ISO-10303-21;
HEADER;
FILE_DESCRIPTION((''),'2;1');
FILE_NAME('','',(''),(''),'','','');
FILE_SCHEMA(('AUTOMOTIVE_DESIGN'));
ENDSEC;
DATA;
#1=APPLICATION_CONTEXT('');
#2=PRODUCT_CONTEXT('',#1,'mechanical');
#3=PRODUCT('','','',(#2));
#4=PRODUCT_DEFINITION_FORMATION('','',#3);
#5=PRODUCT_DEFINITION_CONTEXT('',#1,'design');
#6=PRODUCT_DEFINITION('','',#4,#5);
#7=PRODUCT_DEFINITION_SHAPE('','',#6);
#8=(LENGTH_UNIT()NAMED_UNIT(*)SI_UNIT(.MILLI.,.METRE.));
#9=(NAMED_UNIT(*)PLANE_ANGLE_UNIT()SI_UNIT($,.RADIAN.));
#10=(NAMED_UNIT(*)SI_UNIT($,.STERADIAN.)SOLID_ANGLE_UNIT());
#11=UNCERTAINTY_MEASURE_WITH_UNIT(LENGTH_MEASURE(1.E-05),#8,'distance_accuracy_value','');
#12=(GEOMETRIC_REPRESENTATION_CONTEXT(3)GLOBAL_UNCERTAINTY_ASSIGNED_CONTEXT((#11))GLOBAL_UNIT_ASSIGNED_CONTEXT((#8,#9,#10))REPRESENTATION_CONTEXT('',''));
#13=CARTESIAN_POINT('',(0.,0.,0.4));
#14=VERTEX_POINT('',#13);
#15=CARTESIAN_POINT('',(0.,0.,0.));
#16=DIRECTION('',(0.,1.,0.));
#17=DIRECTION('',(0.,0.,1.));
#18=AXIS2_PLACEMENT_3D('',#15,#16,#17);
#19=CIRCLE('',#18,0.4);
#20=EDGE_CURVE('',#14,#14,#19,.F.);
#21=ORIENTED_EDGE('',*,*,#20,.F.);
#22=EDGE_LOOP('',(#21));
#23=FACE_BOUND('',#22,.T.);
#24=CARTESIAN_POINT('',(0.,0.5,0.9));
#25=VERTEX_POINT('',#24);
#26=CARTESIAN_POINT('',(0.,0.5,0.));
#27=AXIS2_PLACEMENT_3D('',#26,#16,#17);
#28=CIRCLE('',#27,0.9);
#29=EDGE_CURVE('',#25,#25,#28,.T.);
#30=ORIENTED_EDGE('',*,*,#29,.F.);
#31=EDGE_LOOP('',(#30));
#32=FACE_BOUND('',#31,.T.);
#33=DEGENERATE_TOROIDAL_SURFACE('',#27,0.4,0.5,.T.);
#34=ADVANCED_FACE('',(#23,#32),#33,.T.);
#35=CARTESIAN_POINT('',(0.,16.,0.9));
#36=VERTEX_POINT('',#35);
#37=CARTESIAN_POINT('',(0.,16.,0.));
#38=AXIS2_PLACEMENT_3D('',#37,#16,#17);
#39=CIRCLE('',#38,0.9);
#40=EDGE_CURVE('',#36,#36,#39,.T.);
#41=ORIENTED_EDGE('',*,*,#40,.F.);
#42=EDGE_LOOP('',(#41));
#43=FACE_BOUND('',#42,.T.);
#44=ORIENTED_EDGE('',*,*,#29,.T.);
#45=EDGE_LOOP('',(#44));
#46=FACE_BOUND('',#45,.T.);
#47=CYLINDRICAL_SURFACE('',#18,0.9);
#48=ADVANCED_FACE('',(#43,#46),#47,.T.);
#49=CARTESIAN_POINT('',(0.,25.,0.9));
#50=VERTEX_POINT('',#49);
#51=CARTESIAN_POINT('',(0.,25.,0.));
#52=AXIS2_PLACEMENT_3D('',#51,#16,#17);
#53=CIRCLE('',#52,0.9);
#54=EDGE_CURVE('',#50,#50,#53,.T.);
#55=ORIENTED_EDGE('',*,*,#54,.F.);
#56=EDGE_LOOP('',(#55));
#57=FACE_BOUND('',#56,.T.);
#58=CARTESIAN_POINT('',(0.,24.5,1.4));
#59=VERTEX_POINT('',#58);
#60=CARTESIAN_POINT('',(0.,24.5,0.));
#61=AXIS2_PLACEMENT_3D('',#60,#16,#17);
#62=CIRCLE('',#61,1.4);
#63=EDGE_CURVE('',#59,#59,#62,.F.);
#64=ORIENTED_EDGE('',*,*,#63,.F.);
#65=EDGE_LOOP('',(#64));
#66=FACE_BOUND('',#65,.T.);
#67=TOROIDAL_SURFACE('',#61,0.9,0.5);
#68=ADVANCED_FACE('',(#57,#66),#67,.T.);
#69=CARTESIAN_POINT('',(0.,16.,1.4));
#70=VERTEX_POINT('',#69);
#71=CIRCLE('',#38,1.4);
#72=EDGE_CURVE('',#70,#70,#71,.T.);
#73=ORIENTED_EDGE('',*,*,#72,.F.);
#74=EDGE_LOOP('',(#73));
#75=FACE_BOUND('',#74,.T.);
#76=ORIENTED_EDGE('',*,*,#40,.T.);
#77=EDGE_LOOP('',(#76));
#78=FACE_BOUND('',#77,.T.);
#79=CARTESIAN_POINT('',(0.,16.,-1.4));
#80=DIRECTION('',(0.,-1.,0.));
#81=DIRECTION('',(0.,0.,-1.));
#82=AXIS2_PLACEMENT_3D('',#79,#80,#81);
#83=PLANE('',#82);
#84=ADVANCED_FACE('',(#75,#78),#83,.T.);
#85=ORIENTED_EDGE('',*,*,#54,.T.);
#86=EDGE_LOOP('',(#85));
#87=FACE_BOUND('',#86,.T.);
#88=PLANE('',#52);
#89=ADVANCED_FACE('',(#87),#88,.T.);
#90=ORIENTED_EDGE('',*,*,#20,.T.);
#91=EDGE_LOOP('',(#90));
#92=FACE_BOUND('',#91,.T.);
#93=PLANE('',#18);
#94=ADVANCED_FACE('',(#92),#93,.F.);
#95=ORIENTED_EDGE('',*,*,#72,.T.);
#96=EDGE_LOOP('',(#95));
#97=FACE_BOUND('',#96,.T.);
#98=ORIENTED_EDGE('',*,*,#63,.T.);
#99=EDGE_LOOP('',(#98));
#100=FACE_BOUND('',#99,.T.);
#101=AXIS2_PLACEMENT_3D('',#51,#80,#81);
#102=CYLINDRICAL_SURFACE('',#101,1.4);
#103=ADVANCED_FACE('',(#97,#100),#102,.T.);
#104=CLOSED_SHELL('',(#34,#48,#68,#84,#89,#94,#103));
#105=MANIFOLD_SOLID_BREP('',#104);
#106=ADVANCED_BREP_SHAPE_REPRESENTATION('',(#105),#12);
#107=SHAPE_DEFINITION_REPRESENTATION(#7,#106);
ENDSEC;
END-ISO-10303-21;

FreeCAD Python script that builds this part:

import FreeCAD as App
import Part
import Sketcher

V = App.Vector
Q = App.Units.Quantity


def edges_at(feature, points):
    """Names of the edges that pass closest to the given points."""
    edges = feature.Shape.Edges
    near = lambda p: min(range(len(edges)), key=lambda i: edges[i].distToShape(Part.Vertex(*p))[0])
    return sorted({f"Edge{near(p) + 1}" for p in points})

doc = App.newDocument("Part")
body = doc.addObject("PartDesign::Body", "Body")

sketch1 = body.newObject("Sketcher::SketchObject", "Sketch")
sketch1.AttachmentSupport = (doc.getObject("XZ_Plane"), [""])
sketch1.MapMode = "FlatFace"
sketch1.addGeometry(Part.Circle(V(0, 0, 0), V(0, 0, 1), 1.4), False)
sketch1.addConstraint([
    Sketcher.Constraint("Coincident", 0, 3, -1, 1),
    Sketcher.Constraint("Diameter", 0, Q("2.8 mm")),
])
pad1 = body.newObject("PartDesign::Pad", "Pad")
pad1.Profile = sketch1
pad1.Length = 25
pad1.Reversed = True

sketch2 = body.newObject("Sketcher::SketchObject", "Sketch001")
sketch2.AttachmentSupport = (doc.getObject("YZ_Plane"), [""])
sketch2.MapMode = "FlatFace"
sketch2.addGeometry([
    Part.LineSegment(V(16, -0.9, 0), V(0, -0.9, 0)),
    Part.LineSegment(V(0, -0.9, 0), V(0, -1.4, 0)),
    Part.LineSegment(V(0, -1.4, 0), V(16, -1.4, 0)),
    Part.LineSegment(V(16, -1.4, 0), V(16, -0.9, 0)),
], False)
sketch2.addConstraint([
    Sketcher.Constraint("Coincident", 0, 2, 1, 1),
    Sketcher.Constraint("Coincident", 1, 2, 2, 1),
    Sketcher.Constraint("Coincident", 2, 2, 3, 1),
    Sketcher.Constraint("Coincident", 3, 2, 0, 1),
    Sketcher.Constraint("Horizontal", 0),
    Sketcher.Constraint("Vertical", 1),
    Sketcher.Constraint("Horizontal", 2),
    Sketcher.Constraint("Vertical", 3),
    Sketcher.Constraint("PointOnObject", 0, 2, -2),
    Sketcher.Constraint("DistanceX", 0, 2, 0, 1, Q("16 mm")),
    Sketcher.Constraint("DistanceY", 1, 2, 1, 1, Q("0.5 mm")),
    Sketcher.Constraint("DistanceY", 0, 2, -1, 1, Q("0.9 mm")),
])
groove = body.newObject("PartDesign::Groove", "Groove")
groove.Profile = sketch2
groove.ReferenceAxis = (sketch2, ["H_Axis"])
groove.Angle = 360
doc.recompute()

fillet = body.newObject("PartDesign::Fillet", "Fillet")
fillet.Base = (groove, edges_at(groove, [(-1.4, 25, 0), (0, 0, 0.9)]))
fillet.Radius = 0.5

doc.recompute()
